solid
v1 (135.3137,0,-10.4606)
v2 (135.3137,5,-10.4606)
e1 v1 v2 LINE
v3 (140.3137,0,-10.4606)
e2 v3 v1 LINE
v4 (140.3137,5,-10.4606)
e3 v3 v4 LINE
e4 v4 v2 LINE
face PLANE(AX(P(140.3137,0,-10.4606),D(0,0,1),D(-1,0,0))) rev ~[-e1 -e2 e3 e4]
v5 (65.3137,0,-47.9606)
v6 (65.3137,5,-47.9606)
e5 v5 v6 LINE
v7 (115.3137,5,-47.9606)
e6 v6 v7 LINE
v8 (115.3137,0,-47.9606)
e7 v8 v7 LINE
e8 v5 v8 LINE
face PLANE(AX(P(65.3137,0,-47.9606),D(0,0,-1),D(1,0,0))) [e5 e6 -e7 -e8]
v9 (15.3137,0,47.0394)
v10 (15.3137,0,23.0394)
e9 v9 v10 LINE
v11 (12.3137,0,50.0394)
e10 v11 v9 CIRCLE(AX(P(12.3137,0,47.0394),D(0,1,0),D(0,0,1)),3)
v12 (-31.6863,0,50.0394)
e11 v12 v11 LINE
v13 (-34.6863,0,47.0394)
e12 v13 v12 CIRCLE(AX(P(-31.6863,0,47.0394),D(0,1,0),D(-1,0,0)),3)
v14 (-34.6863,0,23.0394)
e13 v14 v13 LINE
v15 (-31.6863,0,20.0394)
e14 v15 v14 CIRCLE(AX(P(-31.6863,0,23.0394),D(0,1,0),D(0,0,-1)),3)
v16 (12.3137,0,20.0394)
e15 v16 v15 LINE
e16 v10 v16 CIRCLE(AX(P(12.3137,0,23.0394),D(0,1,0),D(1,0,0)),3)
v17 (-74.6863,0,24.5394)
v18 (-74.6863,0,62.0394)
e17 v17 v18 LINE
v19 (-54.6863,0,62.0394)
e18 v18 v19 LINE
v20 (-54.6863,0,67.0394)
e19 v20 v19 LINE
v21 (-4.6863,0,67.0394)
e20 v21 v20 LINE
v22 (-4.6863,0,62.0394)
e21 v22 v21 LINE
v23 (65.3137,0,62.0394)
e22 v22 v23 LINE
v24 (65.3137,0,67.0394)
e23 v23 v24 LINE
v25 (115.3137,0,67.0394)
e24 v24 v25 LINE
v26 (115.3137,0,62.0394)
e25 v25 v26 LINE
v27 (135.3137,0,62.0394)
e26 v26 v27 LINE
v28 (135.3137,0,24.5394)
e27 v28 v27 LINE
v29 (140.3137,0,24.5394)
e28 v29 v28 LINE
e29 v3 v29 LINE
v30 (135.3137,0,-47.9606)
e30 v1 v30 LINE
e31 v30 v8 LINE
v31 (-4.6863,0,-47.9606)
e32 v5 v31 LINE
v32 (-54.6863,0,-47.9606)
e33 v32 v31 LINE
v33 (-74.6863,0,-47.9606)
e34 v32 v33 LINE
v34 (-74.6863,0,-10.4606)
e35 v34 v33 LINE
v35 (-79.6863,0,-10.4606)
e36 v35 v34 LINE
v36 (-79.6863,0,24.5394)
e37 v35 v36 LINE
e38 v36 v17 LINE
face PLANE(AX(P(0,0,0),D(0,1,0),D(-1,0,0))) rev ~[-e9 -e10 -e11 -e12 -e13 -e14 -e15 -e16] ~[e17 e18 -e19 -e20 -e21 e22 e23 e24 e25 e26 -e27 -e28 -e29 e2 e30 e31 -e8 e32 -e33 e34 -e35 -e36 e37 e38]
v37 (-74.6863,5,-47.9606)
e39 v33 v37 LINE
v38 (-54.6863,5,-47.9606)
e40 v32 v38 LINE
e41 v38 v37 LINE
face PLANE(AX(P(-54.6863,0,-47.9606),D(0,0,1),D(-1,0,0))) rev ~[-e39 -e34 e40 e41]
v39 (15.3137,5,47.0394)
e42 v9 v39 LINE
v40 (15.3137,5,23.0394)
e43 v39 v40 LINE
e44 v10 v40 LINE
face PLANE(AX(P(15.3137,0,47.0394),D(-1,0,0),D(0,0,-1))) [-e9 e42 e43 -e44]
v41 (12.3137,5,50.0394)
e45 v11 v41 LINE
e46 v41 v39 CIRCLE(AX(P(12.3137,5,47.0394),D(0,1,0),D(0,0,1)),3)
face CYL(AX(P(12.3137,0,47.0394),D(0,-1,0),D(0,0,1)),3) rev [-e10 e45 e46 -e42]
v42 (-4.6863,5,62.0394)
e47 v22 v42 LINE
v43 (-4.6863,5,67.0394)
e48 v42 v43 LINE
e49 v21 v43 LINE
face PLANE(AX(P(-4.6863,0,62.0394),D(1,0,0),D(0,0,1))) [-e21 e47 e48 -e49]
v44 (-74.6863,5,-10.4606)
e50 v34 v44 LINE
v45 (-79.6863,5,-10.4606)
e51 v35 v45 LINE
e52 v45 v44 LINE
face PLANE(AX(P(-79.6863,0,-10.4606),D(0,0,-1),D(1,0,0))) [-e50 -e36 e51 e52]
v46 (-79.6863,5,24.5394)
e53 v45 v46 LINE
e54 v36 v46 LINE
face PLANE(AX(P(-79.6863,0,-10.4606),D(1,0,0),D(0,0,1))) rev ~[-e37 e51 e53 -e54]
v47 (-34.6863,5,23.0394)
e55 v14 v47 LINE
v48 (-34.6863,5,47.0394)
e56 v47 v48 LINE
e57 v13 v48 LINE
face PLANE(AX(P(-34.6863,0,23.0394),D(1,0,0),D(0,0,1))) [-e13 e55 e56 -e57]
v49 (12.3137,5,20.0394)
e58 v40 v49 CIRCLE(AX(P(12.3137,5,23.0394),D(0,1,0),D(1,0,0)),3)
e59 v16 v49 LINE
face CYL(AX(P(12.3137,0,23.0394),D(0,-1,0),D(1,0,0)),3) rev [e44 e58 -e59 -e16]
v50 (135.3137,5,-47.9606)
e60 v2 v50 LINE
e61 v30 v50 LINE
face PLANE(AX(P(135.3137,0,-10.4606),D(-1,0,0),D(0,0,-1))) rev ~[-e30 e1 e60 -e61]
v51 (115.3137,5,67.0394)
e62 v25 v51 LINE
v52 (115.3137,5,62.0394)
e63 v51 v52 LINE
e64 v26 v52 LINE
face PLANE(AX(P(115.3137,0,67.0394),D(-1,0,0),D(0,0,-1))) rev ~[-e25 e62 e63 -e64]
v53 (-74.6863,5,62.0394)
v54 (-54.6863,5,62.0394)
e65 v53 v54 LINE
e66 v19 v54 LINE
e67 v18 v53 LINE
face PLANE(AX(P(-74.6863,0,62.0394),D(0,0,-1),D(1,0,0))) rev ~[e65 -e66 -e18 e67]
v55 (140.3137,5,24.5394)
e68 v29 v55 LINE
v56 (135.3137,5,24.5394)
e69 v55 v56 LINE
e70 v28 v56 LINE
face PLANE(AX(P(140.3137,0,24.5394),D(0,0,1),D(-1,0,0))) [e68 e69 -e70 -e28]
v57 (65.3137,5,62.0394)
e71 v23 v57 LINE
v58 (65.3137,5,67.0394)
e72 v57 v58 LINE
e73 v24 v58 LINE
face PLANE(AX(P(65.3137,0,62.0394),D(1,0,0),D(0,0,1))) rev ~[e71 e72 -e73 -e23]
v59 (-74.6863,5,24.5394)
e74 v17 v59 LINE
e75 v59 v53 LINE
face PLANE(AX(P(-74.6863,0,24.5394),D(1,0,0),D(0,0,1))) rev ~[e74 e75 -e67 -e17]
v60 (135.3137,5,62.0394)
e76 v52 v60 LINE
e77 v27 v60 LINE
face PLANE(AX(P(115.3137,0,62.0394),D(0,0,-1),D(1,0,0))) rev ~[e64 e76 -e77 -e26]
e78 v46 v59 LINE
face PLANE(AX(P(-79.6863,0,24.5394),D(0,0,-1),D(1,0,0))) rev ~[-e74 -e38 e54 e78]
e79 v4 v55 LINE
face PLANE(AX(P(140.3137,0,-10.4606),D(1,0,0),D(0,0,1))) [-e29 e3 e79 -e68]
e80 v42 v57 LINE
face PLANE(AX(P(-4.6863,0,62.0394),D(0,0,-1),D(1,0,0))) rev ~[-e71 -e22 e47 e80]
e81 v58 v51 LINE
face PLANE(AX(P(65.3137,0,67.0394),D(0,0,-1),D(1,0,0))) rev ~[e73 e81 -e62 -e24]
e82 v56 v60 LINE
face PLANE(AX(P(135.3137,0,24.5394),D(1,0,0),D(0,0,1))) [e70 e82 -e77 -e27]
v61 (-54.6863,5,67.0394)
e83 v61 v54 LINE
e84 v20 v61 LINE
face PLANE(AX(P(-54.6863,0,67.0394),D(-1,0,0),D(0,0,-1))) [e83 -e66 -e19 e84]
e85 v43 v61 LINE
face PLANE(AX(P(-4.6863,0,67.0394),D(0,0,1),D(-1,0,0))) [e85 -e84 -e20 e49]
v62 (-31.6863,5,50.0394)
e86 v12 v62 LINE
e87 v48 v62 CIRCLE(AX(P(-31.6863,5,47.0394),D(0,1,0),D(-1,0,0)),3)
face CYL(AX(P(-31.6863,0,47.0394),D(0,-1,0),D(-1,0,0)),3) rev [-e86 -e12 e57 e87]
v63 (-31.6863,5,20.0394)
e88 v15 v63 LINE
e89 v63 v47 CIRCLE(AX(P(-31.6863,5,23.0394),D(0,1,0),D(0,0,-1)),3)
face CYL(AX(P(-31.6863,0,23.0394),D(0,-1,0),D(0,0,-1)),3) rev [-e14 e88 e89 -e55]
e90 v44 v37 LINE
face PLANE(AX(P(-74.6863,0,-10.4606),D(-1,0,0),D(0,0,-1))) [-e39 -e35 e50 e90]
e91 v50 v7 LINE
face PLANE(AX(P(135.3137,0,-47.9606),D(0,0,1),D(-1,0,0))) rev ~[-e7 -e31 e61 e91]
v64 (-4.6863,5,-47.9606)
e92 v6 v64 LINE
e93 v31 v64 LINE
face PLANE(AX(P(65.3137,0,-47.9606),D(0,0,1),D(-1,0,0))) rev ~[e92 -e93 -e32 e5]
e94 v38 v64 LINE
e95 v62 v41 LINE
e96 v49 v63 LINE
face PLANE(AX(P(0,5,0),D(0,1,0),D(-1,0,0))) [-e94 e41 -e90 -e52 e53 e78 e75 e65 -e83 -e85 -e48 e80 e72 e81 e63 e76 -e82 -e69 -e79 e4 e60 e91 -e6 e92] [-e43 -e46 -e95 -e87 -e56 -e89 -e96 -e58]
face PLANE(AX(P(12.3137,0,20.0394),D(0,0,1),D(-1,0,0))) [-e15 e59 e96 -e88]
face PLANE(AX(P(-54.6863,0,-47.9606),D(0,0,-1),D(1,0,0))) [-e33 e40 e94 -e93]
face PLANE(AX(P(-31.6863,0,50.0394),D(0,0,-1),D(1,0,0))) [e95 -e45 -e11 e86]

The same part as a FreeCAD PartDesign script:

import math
import FreeCAD as App
import Part
import Sketcher
from FreeCAD import Vector

doc = App.newDocument("Part")
body = doc.addObject("PartDesign::Body", "Body")

# Sketch on XZ plane
sketch1 = body.newObject("Sketcher::SketchObject", "Sketch")
sketch1.AttachmentSupport = (doc.getObject("XZ_Plane"), [""])
sketch1.MapMode = "FlatFace"
sketch1.addGeometry(Part.LineSegment(Vector(-4.6863, 67.0394, 0), Vector(-4.6863, 62.0394, 0)), False)
sketch1.addGeometry(Part.LineSegment(Vector(-4.6863, 62.0394, 0), Vector(65.3137, 62.0394, 0)), False)
sketch1.addGeometry(Part.LineSegment(Vector(65.3137, 62.0394, 0), Vector(65.3137, 67.0394, 0)), False)
sketch1.addGeometry(Part.LineSegment(Vector(65.3137, 67.0394, 0), Vector(115.3137, 67.0394, 0)), False)
sketch1.addGeometry(Part.LineSegment(Vector(115.3137, 67.0394, 0), Vector(115.3137, 62.0394, 0)), False)
sketch1.addGeometry(Part.LineSegment(Vector(115.3137, 62.0394, 0), Vector(135.3137, 62.0394, 0)), False)
sketch1.addGeometry(Part.LineSegment(Vector(135.3137, 62.0394, 0), Vector(135.3137, 24.5394, 0)), False)
sketch1.addGeometry(Part.LineSegment(Vector(135.3137, 24.5394, 0), Vector(140.3137, 24.5394, 0)), False)
sketch1.addGeometry(Part.LineSegment(Vector(140.3137, 24.5394, 0), Vector(140.3137, -10.4606, 0)), False)
sketch1.addGeometry(Part.LineSegment(Vector(140.3137, -10.4606, 0), Vector(135.3137, -10.4606, 0)), False)
sketch1.addGeometry(Part.LineSegment(Vector(135.3137, -10.4606, 0), Vector(135.3137, -47.9606, 0)), False)
sketch1.addGeometry(Part.LineSegment(Vector(135.3137, -47.9606, 0), Vector(-74.6863, -47.9606, 0)), False)
sketch1.addGeometry(Part.LineSegment(Vector(-74.6863, -47.9606, 0), Vector(-74.6863, -10.4606, 0)), False)
sketch1.addGeometry(Part.LineSegment(Vector(-74.6863, -10.4606, 0), Vector(-79.6863, -10.4606, 0)), False)
sketch1.addGeometry(Part.LineSegment(Vector(-79.6863, -10.4606, 0), Vector(-79.6863, 24.5394, 0)), False)
sketch1.addGeometry(Part.LineSegment(Vector(-79.6863, 24.5394, 0), Vector(-74.6863, 24.5394, 0)), False)
sketch1.addGeometry(Part.LineSegment(Vector(-74.6863, 24.5394, 0), Vector(-74.6863, 62.0394, 0)), False)
sketch1.addGeometry(Part.LineSegment(Vector(-74.6863, 62.0394, 0), Vector(-54.6863, 62.0394, 0)), False)
sketch1.addGeometry(Part.LineSegment(Vector(-54.6863, 62.0394, 0), Vector(-54.6863, 67.0394, 0)), False)
sketch1.addGeometry(Part.LineSegment(Vector(-54.6863, 67.0394, 0), Vector(-4.6863, 67.0394, 0)), False)
sketch1.addGeometry(Part.LineSegment(Vector(12.3137, 50.0394, 0), Vector(-31.6863, 50.0394, 0)), False)
sketch1.addGeometry(Part.ArcOfCircle(Part.Circle(Vector(-31.6863, 47.0394, 0), Vector(0, 0, 1), 3), math.radians(90), math.radians(180)), False)
sketch1.addGeometry(Part.LineSegment(Vector(-34.6863, 47.0394, 0), Vector(-34.6863, 23.0394, 0)), False)
sketch1.addGeometry(Part.ArcOfCircle(Part.Circle(Vector(-31.6863, 23.0394, 0), Vector(0, 0, 1), 3), math.radians(180), math.radians(270)), False)
sketch1.addGeometry(Part.LineSegment(Vector(-31.6863, 20.0394, 0), Vector(12.3137, 20.0394, 0)), False)
sketch1.addGeometry(Part.ArcOfCircle(Part.Circle(Vector(12.3137, 23.0394, 0), Vector(0, 0, 1), 3), math.radians(-90), math.radians(0)), False)
sketch1.addGeometry(Part.LineSegment(Vector(15.3137, 23.0394, 0), Vector(15.3137, 47.0394, 0)), False)
sketch1.addGeometry(Part.ArcOfCircle(Part.Circle(Vector(12.3137, 47.0394, 0), Vector(0, 0, 1), 3), math.radians(0), math.radians(90)), False)
sketch1.addConstraint(Sketcher.Constraint("Coincident", 0, 2, 1, 1))
sketch1.addConstraint(Sketcher.Constraint("Coincident", 1, 2, 2, 1))
sketch1.addConstraint(Sketcher.Constraint("Coincident", 2, 2, 3, 1))
sketch1.addConstraint(Sketcher.Constraint("Coincident", 3, 2, 4, 1))
sketch1.addConstraint(Sketcher.Constraint("Coincident", 4, 2, 5, 1))
sketch1.addConstraint(Sketcher.Constraint("Coincident", 5, 2, 6, 1))
sketch1.addConstraint(Sketcher.Constraint("Coincident", 6, 2, 7, 1))
sketch1.addConstraint(Sketcher.Constraint("Coincident", 7, 2, 8, 1))
sketch1.addConstraint(Sketcher.Constraint("Coincident", 8, 2, 9, 1))
sketch1.addConstraint(Sketcher.Constraint("Coincident", 9, 2, 10, 1))
sketch1.addConstraint(Sketcher.Constraint("Coincident", 10, 2, 11, 1))
sketch1.addConstraint(Sketcher.Constraint("Coincident", 11, 2, 12, 1))
sketch1.addConstraint(Sketcher.Constraint("Coincident", 12, 2, 13, 1))
sketch1.addConstraint(Sketcher.Constraint("Coincident", 13, 2, 14, 1))
sketch1.addConstraint(Sketcher.Constraint("Coincident", 14, 2, 15, 1))
sketch1.addConstraint(Sketcher.Constraint("Coincident", 15, 2, 16, 1))
sketch1.addConstraint(Sketcher.Constraint("Coincident", 16, 2, 17, 1))
sketch1.addConstraint(Sketcher.Constraint("Coincident", 17, 2, 18, 1))
sketch1.addConstraint(Sketcher.Constraint("Coincident", 18, 2, 19, 1))
sketch1.addConstraint(Sketcher.Constraint("Coincident", 19, 2, 0, 1))
sketch1.addConstraint(Sketcher.Constraint("Tangent", 20, 2, 21, 1))
sketch1.addConstraint(Sketcher.Constraint("Tangent", 21, 2, 22, 1))
sketch1.addConstraint(Sketcher.Constraint("Tangent", 22, 2, 23, 1))
sketch1.addConstraint(Sketcher.Constraint("Tangent", 23, 2, 24, 1))
sketch1.addConstraint(Sketcher.Constraint("Tangent", 24, 2, 25, 1))
sketch1.addConstraint(Sketcher.Constraint("Tangent", 25, 2, 26, 1))
sketch1.addConstraint(Sketcher.Constraint("Tangent", 26, 2, 27, 1))
sketch1.addConstraint(Sketcher.Constraint("Tangent", 27, 2, 20, 1))
sketch1.addConstraint(Sketcher.Constraint("Vertical", 0))
sketch1.addConstraint(Sketcher.Constraint("Horizontal", 1))
sketch1.addConstraint(Sketcher.Constraint("Vertical", 2))
sketch1.addConstraint(Sketcher.Constraint("Horizontal", 3))
sketch1.addConstraint(Sketcher.Constraint("Vertical", 4))
sketch1.addConstraint(Sketcher.Constraint("Horizontal", 5))
sketch1.addConstraint(Sketcher.Constraint("Vertical", 6))
sketch1.addConstraint(Sketcher.Constraint("Horizontal", 7))
sketch1.addConstraint(Sketcher.Constraint("Vertical", 8))
sketch1.addConstraint(Sketcher.Constraint("Horizontal", 9))
sketch1.addConstraint(Sketcher.Constraint("Vertical", 10))
sketch1.addConstraint(Sketcher.Constraint("Horizontal", 11))
sketch1.addConstraint(Sketcher.Constraint("Vertical", 12))
sketch1.addConstraint(Sketcher.Constraint("Horizontal", 13))
sketch1.addConstraint(Sketcher.Constraint("Vertical", 14))
sketch1.addConstraint(Sketcher.Constraint("Horizontal", 15))
sketch1.addConstraint(Sketcher.Constraint("Vertical", 16))
sketch1.addConstraint(Sketcher.Constraint("Horizontal", 17))
sketch1.addConstraint(Sketcher.Constraint("Vertical", 18))
sketch1.addConstraint(Sketcher.Constraint("Horizontal", 19))
sketch1.addConstraint(Sketcher.Constraint("Horizontal", 20))
sketch1.addConstraint(Sketcher.Constraint("Vertical", 22))
sketch1.addConstraint(Sketcher.Constraint("Horizontal", 24))
sketch1.addConstraint(Sketcher.Constraint("Vertical", 26))
sketch1.addConstraint(Sketcher.Constraint("Equal", 21, 23))
sketch1.addConstraint(Sketcher.Constraint("Equal", 23, 25))
sketch1.addConstraint(Sketcher.Constraint("Equal", 25, 27))
sketch1.addConstraint(Sketcher.Constraint("Horizontal", 1, 2, 4, 2))
sketch1.addConstraint(Sketcher.Constraint("Horizontal", 9, 2, 12, 2))
sketch1.addConstraint(Sketcher.Constraint("Horizontal", 7, 2, 14, 2))
sketch1.addConstraint(Sketcher.Constraint("Horizontal", 5, 2, 16, 2))
sketch1.addConstraint(Sketcher.Constraint("Horizontal", 3, 2, 18, 2))
sketch1.addConstraint(Sketcher.Constraint("Vertical", 6, 2, 9, 2))
sketch1.addConstraint(Sketcher.Constraint("Vertical", 12, 2, 15, 2))
sketch1.addConstraint(Sketcher.Constraint("Equal", 9, 13))
sketch1.addConstraint(Sketcher.Constraint("Equal", 5, 17))
sketch1.addConstraint(Sketcher.Constraint("Equal", 3, 19))
sketch1.addConstraint(Sketcher.Constraint("Equal", 15, 0))
sketch1.addConstraint(Sketcher.Constraint("Equal", 6, 10))
sketch1.addConstraint(Sketcher.Constraint("Radius", 21, 3.0))
sketch1.addConstraint(Sketcher.Constraint("DistanceX", 1, 1, 1, 2, 70.0))
sketch1.addConstraint(Sketcher.Constraint("DistanceX", 3, 1, 3, 2, 50.0))
sketch1.addConstraint(Sketcher.Constraint("DistanceX", 7, 1, 7, 2, 5.0))
sketch1.addConstraint(Sketcher.Constraint("DistanceX", 1, 2, 5, 2, 70.0))
sketch1.addConstraint(Sketcher.Constraint("DistanceY", 23, 2, 20, 2, 30.0))
sketch1.addConstraint(Sketcher.Constraint("DistanceX", 20, 2, 20, 1, 44.0))
sketch1.addConstraint(Sketcher.Constraint("DistanceY", 8, 2, 8, 1, 35.0))
sketch1.addConstraint(Sketcher.Constraint("DistanceY", 6, 2, 6, 1, 37.5))
sketch1.addConstraint(Sketcher.Constraint("DistanceX", 0, 2, 27, 3, 17.0))
sketch1.addConstraint(Sketcher.Constraint("DistanceY", 27, 3, 0, 2, 15.0))
sketch1.addConstraint(Sketcher.Constraint("DistanceX", 21, 3, -1, 1, 31.6863))
sketch1.addConstraint(Sketcher.Constraint("DistanceY", -1, 1, 21, 3, 47.0394))
pad1 = body.newObject("PartDesign::Pad", "Pad")
pad1.Profile = sketch1
pad1.Length = 5
pad1.Reversed = True

doc.recompute()
